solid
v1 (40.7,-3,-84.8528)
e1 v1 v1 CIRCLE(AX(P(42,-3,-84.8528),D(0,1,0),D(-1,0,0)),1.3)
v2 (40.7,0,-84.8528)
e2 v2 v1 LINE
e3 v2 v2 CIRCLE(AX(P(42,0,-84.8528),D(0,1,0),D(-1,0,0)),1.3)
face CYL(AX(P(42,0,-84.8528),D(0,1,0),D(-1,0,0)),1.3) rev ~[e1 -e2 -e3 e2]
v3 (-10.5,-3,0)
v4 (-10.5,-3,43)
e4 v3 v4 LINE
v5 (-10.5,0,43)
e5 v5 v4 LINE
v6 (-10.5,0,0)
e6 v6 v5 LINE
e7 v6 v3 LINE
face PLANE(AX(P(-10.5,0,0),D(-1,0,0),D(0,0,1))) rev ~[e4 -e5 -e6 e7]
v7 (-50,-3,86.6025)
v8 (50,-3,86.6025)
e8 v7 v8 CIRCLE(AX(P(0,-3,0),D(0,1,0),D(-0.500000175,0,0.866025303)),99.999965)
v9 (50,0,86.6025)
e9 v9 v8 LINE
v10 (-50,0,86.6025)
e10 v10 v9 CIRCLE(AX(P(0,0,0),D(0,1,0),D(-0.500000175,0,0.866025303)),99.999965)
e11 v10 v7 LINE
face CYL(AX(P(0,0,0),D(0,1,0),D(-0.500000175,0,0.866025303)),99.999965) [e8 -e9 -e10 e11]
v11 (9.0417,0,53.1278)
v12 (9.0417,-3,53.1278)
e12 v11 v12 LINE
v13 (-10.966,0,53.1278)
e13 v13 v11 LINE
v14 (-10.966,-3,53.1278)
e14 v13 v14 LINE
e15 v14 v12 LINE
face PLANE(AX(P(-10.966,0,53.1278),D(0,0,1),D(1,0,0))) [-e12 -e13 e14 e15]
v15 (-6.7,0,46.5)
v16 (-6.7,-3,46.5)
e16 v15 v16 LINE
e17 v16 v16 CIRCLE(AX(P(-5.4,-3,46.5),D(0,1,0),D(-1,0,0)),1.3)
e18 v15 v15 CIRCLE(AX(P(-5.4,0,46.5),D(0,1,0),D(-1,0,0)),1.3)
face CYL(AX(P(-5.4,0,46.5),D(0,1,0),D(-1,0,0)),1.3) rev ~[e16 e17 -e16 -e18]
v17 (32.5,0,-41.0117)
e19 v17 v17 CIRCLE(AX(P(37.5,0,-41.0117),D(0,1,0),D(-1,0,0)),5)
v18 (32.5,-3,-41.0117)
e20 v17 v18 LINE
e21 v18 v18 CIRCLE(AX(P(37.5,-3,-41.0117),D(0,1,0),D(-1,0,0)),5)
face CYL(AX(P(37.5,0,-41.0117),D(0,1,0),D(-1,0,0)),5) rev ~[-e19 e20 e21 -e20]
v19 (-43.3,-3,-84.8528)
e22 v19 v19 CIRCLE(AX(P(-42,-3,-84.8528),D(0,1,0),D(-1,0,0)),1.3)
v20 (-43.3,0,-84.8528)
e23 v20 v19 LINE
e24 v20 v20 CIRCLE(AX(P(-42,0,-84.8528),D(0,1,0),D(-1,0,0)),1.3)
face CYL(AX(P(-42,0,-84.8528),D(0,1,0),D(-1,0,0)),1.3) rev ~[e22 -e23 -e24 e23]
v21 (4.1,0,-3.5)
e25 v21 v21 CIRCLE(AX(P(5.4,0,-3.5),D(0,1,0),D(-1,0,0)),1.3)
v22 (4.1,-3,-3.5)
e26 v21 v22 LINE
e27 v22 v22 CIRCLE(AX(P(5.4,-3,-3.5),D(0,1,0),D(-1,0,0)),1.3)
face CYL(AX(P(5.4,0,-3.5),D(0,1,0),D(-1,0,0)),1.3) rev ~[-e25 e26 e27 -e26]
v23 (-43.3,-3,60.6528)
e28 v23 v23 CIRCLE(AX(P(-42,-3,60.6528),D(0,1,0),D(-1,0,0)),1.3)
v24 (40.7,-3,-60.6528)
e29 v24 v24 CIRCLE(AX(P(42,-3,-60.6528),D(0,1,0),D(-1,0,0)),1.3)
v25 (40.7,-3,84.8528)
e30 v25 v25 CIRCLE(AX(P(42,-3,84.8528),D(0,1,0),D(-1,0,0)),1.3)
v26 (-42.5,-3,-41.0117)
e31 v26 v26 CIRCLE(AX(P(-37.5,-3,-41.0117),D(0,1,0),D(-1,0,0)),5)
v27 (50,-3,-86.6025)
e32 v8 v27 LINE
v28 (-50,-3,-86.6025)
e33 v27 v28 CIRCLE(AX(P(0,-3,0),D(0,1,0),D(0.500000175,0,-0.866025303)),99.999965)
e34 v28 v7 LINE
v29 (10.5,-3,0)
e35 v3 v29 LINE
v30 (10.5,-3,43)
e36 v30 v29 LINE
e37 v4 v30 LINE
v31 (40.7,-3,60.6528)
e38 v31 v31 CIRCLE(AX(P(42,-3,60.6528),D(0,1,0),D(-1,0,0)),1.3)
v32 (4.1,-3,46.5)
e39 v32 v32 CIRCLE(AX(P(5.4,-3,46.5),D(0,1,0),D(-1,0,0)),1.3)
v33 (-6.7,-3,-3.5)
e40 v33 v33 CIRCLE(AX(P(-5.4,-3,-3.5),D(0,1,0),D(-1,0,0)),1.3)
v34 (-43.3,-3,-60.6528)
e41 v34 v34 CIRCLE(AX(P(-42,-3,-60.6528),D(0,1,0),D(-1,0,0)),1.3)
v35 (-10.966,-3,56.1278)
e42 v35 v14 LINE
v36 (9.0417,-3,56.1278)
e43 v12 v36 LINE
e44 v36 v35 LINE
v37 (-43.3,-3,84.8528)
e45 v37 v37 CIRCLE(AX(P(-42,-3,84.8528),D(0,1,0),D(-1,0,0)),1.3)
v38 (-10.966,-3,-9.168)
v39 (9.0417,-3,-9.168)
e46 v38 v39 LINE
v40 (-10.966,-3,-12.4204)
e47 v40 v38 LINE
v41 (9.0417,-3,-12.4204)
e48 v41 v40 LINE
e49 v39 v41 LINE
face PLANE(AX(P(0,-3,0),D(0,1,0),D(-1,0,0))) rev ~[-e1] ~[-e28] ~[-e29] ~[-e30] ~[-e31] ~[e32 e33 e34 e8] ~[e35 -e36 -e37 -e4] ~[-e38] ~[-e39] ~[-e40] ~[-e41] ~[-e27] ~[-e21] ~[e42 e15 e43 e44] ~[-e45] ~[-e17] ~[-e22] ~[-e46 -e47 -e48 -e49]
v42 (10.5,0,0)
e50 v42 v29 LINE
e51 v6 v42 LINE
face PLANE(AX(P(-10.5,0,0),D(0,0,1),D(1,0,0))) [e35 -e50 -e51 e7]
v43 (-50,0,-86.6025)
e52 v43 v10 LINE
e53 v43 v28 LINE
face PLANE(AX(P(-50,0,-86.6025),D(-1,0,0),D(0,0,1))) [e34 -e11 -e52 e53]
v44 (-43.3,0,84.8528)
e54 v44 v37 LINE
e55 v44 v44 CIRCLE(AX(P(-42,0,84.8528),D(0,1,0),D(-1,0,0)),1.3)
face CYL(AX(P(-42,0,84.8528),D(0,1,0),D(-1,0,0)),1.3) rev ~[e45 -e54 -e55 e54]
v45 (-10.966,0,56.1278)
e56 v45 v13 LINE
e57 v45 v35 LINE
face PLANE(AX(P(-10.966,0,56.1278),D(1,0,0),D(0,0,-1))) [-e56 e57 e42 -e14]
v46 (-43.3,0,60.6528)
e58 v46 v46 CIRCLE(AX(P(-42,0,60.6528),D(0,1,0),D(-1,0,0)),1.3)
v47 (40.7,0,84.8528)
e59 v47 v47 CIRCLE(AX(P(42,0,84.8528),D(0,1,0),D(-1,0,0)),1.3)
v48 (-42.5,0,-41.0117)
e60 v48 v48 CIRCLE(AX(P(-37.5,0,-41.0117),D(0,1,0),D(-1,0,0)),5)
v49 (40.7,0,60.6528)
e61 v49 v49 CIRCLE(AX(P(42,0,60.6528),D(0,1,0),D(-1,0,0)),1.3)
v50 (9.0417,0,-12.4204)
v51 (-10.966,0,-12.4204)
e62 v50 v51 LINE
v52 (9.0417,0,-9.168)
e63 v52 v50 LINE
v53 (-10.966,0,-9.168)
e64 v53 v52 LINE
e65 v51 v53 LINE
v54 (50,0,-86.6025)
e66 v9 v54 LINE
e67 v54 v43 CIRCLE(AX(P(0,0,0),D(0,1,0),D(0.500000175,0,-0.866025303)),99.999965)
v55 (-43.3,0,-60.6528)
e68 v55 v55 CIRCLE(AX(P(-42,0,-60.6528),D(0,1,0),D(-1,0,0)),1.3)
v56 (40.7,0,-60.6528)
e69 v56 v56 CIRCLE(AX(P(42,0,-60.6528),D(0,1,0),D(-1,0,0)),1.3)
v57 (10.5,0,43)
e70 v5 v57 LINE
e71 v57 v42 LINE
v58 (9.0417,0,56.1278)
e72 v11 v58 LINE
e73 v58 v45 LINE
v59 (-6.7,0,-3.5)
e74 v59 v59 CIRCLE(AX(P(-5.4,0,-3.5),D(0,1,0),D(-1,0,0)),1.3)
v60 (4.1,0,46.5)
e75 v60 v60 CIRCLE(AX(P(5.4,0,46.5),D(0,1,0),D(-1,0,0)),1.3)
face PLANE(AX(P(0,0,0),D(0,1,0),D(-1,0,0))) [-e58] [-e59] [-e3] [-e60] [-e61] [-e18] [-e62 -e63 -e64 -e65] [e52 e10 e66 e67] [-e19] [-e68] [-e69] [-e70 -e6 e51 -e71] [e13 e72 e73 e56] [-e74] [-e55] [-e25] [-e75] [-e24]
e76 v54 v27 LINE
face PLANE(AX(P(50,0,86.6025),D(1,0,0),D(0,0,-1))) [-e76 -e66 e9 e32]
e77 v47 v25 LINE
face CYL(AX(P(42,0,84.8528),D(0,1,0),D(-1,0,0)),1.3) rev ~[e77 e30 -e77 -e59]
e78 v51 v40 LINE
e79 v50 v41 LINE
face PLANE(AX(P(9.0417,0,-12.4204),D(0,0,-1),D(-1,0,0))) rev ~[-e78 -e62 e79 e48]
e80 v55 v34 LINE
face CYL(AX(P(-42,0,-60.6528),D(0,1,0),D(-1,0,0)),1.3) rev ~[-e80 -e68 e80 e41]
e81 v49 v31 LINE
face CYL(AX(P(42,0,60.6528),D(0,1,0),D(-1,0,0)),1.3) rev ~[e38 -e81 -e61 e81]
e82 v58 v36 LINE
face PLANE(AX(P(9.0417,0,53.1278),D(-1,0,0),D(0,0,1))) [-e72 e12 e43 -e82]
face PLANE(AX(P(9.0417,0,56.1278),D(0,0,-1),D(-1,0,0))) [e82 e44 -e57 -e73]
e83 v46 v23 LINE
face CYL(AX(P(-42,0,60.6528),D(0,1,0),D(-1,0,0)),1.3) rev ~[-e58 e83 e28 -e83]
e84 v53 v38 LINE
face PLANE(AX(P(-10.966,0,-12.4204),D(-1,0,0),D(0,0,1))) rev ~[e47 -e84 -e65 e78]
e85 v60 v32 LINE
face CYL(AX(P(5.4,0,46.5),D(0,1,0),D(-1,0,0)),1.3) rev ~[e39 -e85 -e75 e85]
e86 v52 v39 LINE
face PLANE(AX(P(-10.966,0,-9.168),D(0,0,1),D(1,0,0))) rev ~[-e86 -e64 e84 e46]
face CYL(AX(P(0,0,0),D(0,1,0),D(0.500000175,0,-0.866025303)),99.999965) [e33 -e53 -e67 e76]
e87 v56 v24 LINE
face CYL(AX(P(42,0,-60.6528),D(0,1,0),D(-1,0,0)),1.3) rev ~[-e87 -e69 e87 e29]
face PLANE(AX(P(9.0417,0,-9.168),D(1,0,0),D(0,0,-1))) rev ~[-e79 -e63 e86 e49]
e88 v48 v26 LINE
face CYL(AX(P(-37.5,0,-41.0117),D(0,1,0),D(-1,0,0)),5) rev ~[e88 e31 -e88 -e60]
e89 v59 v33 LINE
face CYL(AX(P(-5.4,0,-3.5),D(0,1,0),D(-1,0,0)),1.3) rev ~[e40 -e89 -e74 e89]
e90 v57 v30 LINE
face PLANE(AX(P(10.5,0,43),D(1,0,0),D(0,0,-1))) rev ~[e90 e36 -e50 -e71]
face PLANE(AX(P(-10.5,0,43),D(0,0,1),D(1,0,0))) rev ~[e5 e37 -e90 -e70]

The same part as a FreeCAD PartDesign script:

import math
import FreeCAD as App
import Part
import Sketcher

V = App.Vector
Q = App.Units.Quantity

doc = App.newDocument("Part")
params = doc.addObject("Spreadsheet::Sheet", "Params")
for row, (alias, value) in enumerate([
    ("sketch1_diameter", "10 mm"),
    ("sketch1_radius", "100 mm"),
    ("sketch1_diameter2", "2.6 mm"),
    ("sketch1_width", "21 mm"),
    ("sketch1_height", "43 mm"),
    ("pad1_length", "3 mm"),
    ("sketch2_height", "3 mm"),
    ("pocket1_length", "3 mm"),
], start=1):
    params.set(f"A{row}", alias)
    params.set(f"B{row}", "=" + value)
    params.setAlias(f"B{row}", alias)

body = doc.addObject("PartDesign::Body", "Body")

sketch1 = doc.addObject("Sketcher::SketchObject", "Sketch")
body.addObject(sketch1)
sketch1.AttachmentSupport = (doc.XZ_Plane, [""])
sketch1.MapMode = "FlatFace"
sketch1.addGeometry([
    Part.ArcOfCircle(Part.Circle(V(0, 0, 0), V(0, 0, 1), 100), math.radians(60), math.radians(120)),
    Part.LineSegment(V(50, 86.6, 0), V(50, -86.6, 0)),
    Part.ArcOfCircle(Part.Circle(V(0, 0, 0), V(0, 0, 1), 100), math.radians(-120), math.radians(-60)),
    Part.LineSegment(V(-50, -86.6, 0), V(-50, 86.6, 0)),
    Part.Circle(V(42, -84.9, 0), V(0, 0, 1), 1.3),
    Part.Circle(V(42, -60.7, 0), V(0, 0, 1), 1.3),
    Part.Circle(V(37.5, -41, 0), V(0, 0, 1), 5),
    Part.Circle(V(5.4, -3.5, 0), V(0, 0, 1), 1.3),
    Part.Circle(V(-42, -84.9, 0), V(0, 0, 1), 1.3),
    Part.Circle(V(-42, -60.7, 0), V(0, 0, 1), 1.3),
    Part.Circle(V(-5.4, -3.5, 0), V(0, 0, 1), 1.3),
    Part.Circle(V(-37.5, -41, 0), V(0, 0, 1), 5),
    Part.Circle(V(5.4, 46.5, 0), V(0, 0, 1), 1.3),
    Part.Circle(V(42, 60.7, 0), V(0, 0, 1), 1.3),
    Part.Circle(V(42, 84.9, 0), V(0, 0, 1), 1.3),
    Part.LineSegment(V(-10.5, 43, 0), V(-10.5, 0, 0)),
    Part.LineSegment(V(-10.5, 0, 0), V(10.5, 0, 0)),
    Part.LineSegment(V(10.5, 0, 0), V(10.5, 43, 0)),
    Part.LineSegment(V(10.5, 43, 0), V(-10.5, 43, 0)),
    Part.Circle(V(-5.4, 46.5, 0), V(0, 0, 1), 1.3),
    Part.Circle(V(-42, 60.7, 0), V(0, 0, 1), 1.3),
    Part.Circle(V(-42, 84.9, 0), V(0, 0, 1), 1.3),
], False)
sketch1.addConstraint([
    Sketcher.Constraint("Coincident", 0, 1, 1, 1),
    Sketcher.Constraint("Coincident", 1, 2, 2, 2),
    Sketcher.Constraint("Coincident", 2, 1, 3, 1),
    Sketcher.Constraint("Coincident", 3, 2, 0, 2),
    Sketcher.Constraint("Coincident", 15, 2, 16, 1),
    Sketcher.Constraint("Coincident", 16, 2, 17, 1),
    Sketcher.Constraint("Coincident", 17, 2, 18, 1),
    Sketcher.Constraint("Coincident", 18, 2, 15, 1),
    Sketcher.Constraint("Vertical", 1),
    Sketcher.Constraint("Vertical", 3),
    Sketcher.Constraint("Vertical", 15),
    Sketcher.Constraint("Horizontal", 16),
    Sketcher.Constraint("Vertical", 17),
    Sketcher.Constraint("Horizontal", 18),
    Sketcher.Constraint("Coincident", 0, 3, -1, 1),
    Sketcher.Constraint("Coincident", 2, 3, -1, 1),
    Sketcher.Constraint("Equal", 0, 2),
    Sketcher.Constraint("Equal", 4, 5),
    Sketcher.Constraint("Equal", 5, 7),
    Sketcher.Constraint("Equal", 7, 8),
    Sketcher.Constraint("Equal", 8, 9),
    Sketcher.Constraint("Equal", 9, 10),
    Sketcher.Constraint("Equal", 6, 11),
    Sketcher.Constraint("Equal", 10, 12),
    Sketcher.Constraint("Equal", 12, 13),
    Sketcher.Constraint("Equal", 13, 14),
    Sketcher.Constraint("Equal", 14, 19),
    Sketcher.Constraint("Equal", 19, 20),
    Sketcher.Constraint("Equal", 20, 21),
    Sketcher.Constraint("Symmetric", 9, 3, 13, 3, -1, 1),
    Sketcher.Constraint("Symmetric", 8, 3, 14, 3, -1, 1),
    Sketcher.Constraint("Symmetric", 5, 3, 20, 3, -1, 1),
    Sketcher.Constraint("Symmetric", 4, 3, 21, 3, -1, 1),
    Sketcher.Constraint("Symmetric", 15, 2, 16, 2, -1, 1),
    Sketcher.Constraint("Symmetric", 4, 3, 8, 3, -2),
    Sketcher.Constraint("Symmetric", 5, 3, 9, 3, -2),
    Sketcher.Constraint("Symmetric", 7, 3, 10, 3, -2),
    Sketcher.Constraint("Symmetric", 6, 3, 11, 3, -2),
    Sketcher.Constraint("Symmetric", 12, 3, 19, 3, -2),
    Sketcher.Constraint("Horizontal", 1, 2, 2, 1),
    Sketcher.Constraint("Vertical", 4, 3, 5, 3),
    Sketcher.Constraint("Vertical", 7, 3, 12, 3),
    Sketcher.Constraint("Diameter", 6, Q("10 mm")),
    Sketcher.Constraint("Radius", 0, Q("100 mm")),
    Sketcher.Constraint("Diameter", 4, Q("2.6 mm")),
    Sketcher.Constraint("DistanceX", 16, 1, 16, 2, Q("21 mm")),
    Sketcher.Constraint("DistanceY", 15, 2, 15, 1, Q("43 mm")),
    Sketcher.Constraint("DistanceX", -1, 1, 4, 3, Q("42 mm")),
    Sketcher.Constraint("DistanceX", -1, 1, 0, 1, Q("50 mm")),
    Sketcher.Constraint("DistanceY", 7, 3, 12, 3, Q("50 mm")),
    Sketcher.Constraint("DistanceX", -1, 1, 6, 3, Q("37.5 mm")),
    Sketcher.Constraint("DistanceX", -1, 1, 7, 3, Q("5.4 mm")),
    Sketcher.Constraint("DistanceY", 7, 3, -1, 1, Q("3.5 mm")),
    Sketcher.Constraint("DistanceY", 4, 3, 5, 3, Q("24.2 mm")),
    Sketcher.Constraint("DistanceY", 5, 3, 6, 3, Q("19.641 mm")),
    Sketcher.Constraint("DistanceY", 4, 3, -1, 1, Q("84.8528 mm")),
])
sketch1.setExpression("Constraints[42]", "Params.sketch1_diameter")
sketch1.setExpression("Constraints[43]", "Params.sketch1_radius")
sketch1.setExpression("Constraints[44]", "Params.sketch1_diameter2")
sketch1.setExpression("Constraints[45]", "Params.sketch1_width")
sketch1.setExpression("Constraints[46]", "Params.sketch1_height")
pad1 = doc.addObject("PartDesign::Pad", "Pad")
body.addObject(pad1)
pad1.Profile = sketch1
pad1.setExpression("Length", "Params.pad1_length")

sketch2 = doc.addObject("Sketcher::SketchObject", "Sketch001")
body.addObject(sketch2)
sketch2.AttachmentSupport = (doc.XZ_Plane, [""])
sketch2.MapMode = "FlatFace"
sketch2.addGeometry([
    Part.LineSegment(V(-11, -12.4, 0), V(-11, -9.2, 0)),
    Part.LineSegment(V(-11, -9.2, 0), V(9, -9.2, 0)),
    Part.LineSegment(V(9, -9.2, 0), V(9, -12.4, 0)),
    Part.LineSegment(V(9, -12.4, 0), V(-11, -12.4, 0)),
    Part.LineSegment(V(9, 53.1, 0), V(-11, 53.1, 0)),
    Part.LineSegment(V(-11, 53.1, 0), V(-11, 56.1, 0)),
    Part.LineSegment(V(-11, 56.1, 0), V(9, 56.1, 0)),
    Part.LineSegment(V(9, 56.1, 0), V(9, 53.1, 0)),
], False)
sketch2.addConstraint([
    Sketcher.Constraint("Coincident", 0, 2, 1, 1),
    Sketcher.Constraint("Coincident", 1, 2, 2, 1),
    Sketcher.Constraint("Coincident", 2, 2, 3, 1),
    Sketcher.Constraint("Coincident", 3, 2, 0, 1),
    Sketcher.Constraint("Coincident", 4, 2, 5, 1),
    Sketcher.Constraint("Coincident", 5, 2, 6, 1),
    Sketcher.Constraint("Coincident", 6, 2, 7, 1),
    Sketcher.Constraint("Coincident", 7, 2, 4, 1),
    Sketcher.Constraint("Vertical", 0),
    Sketcher.Constraint("Horizontal", 1),
    Sketcher.Constraint("Vertical", 2),
    Sketcher.Constraint("Horizontal", 3),
    Sketcher.Constraint("Horizontal", 4),
    Sketcher.Constraint("Vertical", 5),
    Sketcher.Constraint("Horizontal", 6),
    Sketcher.Constraint("Vertical", 7),
    Sketcher.Constraint("Vertical", 3, 2, 4, 2),
    Sketcher.Constraint("Vertical", 2, 2, 6, 2),
    Sketcher.Constraint("DistanceY", 5, 1, 5, 2, Q("3 mm")),
    Sketcher.Constraint("DistanceX", 1, 1, 1, 2, Q("20.0077 mm")),
    Sketcher.Constraint("DistanceY", 0, 1, 0, 2, Q("3.2524 mm")),
    Sketcher.Constraint("DistanceX", 0, 2, -1, 1, Q("10.966 mm")),
    Sketcher.Constraint("DistanceY", 0, 2, -1, 1, Q("9.168 mm")),
    Sketcher.Constraint("DistanceY", -1, 1, 4, 2, Q("53.1278 mm")),
])
sketch2.setExpression("Constraints[18]", "Params.sketch2_height")
pocket1 = doc.addObject("PartDesign::Pocket", "Pocket")
body.addObject(pocket1)
pocket1.Profile = sketch2
pocket1.setExpression("Length", "Params.pocket1_length")
pocket1.Reversed = True

doc.recompute()
